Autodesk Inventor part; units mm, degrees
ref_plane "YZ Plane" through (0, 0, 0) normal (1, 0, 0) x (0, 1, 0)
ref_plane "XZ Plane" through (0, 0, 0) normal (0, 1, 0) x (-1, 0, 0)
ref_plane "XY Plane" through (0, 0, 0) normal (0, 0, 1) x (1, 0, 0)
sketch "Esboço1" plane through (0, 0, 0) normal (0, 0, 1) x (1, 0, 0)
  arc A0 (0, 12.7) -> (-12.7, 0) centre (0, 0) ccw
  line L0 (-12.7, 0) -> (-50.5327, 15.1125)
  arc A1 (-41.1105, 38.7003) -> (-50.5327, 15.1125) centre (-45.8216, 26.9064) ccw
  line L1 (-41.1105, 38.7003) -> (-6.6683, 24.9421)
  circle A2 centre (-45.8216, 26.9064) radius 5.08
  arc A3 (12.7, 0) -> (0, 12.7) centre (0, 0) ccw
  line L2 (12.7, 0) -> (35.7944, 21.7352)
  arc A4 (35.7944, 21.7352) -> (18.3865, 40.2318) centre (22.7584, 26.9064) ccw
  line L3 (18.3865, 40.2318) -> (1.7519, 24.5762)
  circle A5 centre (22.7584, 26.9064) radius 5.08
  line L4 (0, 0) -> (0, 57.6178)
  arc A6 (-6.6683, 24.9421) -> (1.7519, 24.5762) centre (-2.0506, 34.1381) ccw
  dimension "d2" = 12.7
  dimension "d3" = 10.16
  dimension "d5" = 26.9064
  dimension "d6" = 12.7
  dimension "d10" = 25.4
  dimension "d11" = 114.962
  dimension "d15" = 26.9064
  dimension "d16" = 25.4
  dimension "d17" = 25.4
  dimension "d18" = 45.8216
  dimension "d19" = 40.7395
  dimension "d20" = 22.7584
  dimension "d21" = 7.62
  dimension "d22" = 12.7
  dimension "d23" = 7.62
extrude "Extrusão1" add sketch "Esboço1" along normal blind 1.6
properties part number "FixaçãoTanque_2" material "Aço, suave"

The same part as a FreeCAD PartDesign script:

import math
import FreeCAD as App
import Part
import Sketcher
from FreeCAD import Vector
Q = App.Units.Quantity

doc = App.newDocument("Part")
body = doc.addObject("PartDesign::Body", "Body")

# Sketch on XY plane
sketch1 = doc.addObject("Sketcher::SketchObject", "Sketch")
body.addObject(sketch1)
sketch1.AttachmentSupport = (doc.XY_Plane, [""])
sketch1.MapMode = "FlatFace"
sketch1.addGeometry([
    Part.ArcOfCircle(Part.Circle(Vector(-2.0506, 34.1381, 0), Vector(0, 0, 1), 10.290266), math.radians(-116.66316), math.radians(-68.313669)),  # 0
    Part.LineSegment(Vector(-6.6683, 24.9421, 0), Vector(-41.1105, 38.7003, 0)),  # 1
    Part.ArcOfCircle(Part.Circle(Vector(-45.8216, 26.9064, 0), Vector(0, 0, 1), 12.700021), math.radians(68.22565), math.radians(248.22565)),  # 2
    Part.LineSegment(Vector(-50.5327, 15.1125, 0), Vector(-12.7, 0, 0)),  # 3
    Part.ArcOfCircle(Part.Circle(Vector(0, 0, 0), Vector(0, 0, 1), 12.7), math.radians(0), math.radians(180)),  # 4
    Part.LineSegment(Vector(12.7, 0, 0), Vector(35.7944, 21.7352, 0)),  # 5
    Part.ArcOfCircle(Part.Circle(Vector(22.7584, 26.9064, 0), Vector(0, 0, 1), 14.024215), math.radians(-21.63754), math.radians(108.164028)),  # 6
    Part.LineSegment(Vector(18.3865, 40.2318, 0), Vector(1.7519, 24.5762, 0)),  # 7
    Part.Circle(Vector(22.7584, 26.9064, 0), Vector(0, 0, 1), 5.08),  # 8
    Part.Circle(Vector(-45.8216, 26.9064, 0), Vector(0, 0, 1), 5.08),  # 9
], False)
sketch1.addConstraint([
    Sketcher.Constraint("Coincident", 0, 1, 1, 1),
    Sketcher.Constraint("Tangent", 1, 2, 2, 1),
    Sketcher.Constraint("Tangent", 2, 2, 3, 1),
    Sketcher.Constraint("Coincident", 3, 2, 4, 2),
    Sketcher.Constraint("Coincident", 4, 1, 5, 1),
    Sketcher.Constraint("Coincident", 5, 2, 6, 1),
    Sketcher.Constraint("Coincident", 6, 2, 7, 1),
    Sketcher.Constraint("Coincident", 7, 2, 0, 2),
    Sketcher.Constraint("Coincident", 4, 3, -1, 1),
    Sketcher.Constraint("Coincident", 8, 3, 6, 3),
    Sketcher.Constraint("Coincident", 9, 3, 2, 3),
    Sketcher.Constraint("Equal", 2, 4),
    Sketcher.Constraint("Equal", 8, 9),
    Sketcher.Constraint("PointOnObject", 3, 2, -1),
    Sketcher.Constraint("PointOnObject", 4, 1, -1),
    Sketcher.Constraint("Parallel", 1, 3),
    Sketcher.Constraint("Parallel", 5, 7),
    Sketcher.Constraint("Horizontal", 2, 3, 6, 3),
    Sketcher.Constraint("Diameter", 8, Q("0.4 in")),
    Sketcher.Constraint("Radius", 2, Q("0.5 in")),
    Sketcher.Constraint("DistanceX", 2, 3, -1, 1, Q("1.804 in")),
    Sketcher.Constraint("DistanceX", -1, 1, 6, 3, Q("0.896 in")),
    Sketcher.Constraint("DistanceY", -1, 1, 2, 3, Q("1.0593 in")),
    Sketcher.Constraint("Radius", 0, 10.2903),
    Sketcher.Constraint("Radius", 6, 14.0242),
    Sketcher.Constraint("DistanceX", 1, 2, 0, 1, Q("1.356 in")),
    Sketcher.Constraint("DistanceX", 0, 1, 0, 3, Q("0.1818 in")),
    Sketcher.Constraint("DistanceY", 5, 2, 6, 3, Q("0.2036 in")),
    Sketcher.Constraint("DistanceX", 0, 3, 6, 2, Q("0.8046 in")),
])
pad1 = doc.addObject("PartDesign::Pad", "Pad")
body.addObject(pad1)
pad1.Profile = sketch1
pad1.Length = Q("0.0629921 in")

doc.recompute()
